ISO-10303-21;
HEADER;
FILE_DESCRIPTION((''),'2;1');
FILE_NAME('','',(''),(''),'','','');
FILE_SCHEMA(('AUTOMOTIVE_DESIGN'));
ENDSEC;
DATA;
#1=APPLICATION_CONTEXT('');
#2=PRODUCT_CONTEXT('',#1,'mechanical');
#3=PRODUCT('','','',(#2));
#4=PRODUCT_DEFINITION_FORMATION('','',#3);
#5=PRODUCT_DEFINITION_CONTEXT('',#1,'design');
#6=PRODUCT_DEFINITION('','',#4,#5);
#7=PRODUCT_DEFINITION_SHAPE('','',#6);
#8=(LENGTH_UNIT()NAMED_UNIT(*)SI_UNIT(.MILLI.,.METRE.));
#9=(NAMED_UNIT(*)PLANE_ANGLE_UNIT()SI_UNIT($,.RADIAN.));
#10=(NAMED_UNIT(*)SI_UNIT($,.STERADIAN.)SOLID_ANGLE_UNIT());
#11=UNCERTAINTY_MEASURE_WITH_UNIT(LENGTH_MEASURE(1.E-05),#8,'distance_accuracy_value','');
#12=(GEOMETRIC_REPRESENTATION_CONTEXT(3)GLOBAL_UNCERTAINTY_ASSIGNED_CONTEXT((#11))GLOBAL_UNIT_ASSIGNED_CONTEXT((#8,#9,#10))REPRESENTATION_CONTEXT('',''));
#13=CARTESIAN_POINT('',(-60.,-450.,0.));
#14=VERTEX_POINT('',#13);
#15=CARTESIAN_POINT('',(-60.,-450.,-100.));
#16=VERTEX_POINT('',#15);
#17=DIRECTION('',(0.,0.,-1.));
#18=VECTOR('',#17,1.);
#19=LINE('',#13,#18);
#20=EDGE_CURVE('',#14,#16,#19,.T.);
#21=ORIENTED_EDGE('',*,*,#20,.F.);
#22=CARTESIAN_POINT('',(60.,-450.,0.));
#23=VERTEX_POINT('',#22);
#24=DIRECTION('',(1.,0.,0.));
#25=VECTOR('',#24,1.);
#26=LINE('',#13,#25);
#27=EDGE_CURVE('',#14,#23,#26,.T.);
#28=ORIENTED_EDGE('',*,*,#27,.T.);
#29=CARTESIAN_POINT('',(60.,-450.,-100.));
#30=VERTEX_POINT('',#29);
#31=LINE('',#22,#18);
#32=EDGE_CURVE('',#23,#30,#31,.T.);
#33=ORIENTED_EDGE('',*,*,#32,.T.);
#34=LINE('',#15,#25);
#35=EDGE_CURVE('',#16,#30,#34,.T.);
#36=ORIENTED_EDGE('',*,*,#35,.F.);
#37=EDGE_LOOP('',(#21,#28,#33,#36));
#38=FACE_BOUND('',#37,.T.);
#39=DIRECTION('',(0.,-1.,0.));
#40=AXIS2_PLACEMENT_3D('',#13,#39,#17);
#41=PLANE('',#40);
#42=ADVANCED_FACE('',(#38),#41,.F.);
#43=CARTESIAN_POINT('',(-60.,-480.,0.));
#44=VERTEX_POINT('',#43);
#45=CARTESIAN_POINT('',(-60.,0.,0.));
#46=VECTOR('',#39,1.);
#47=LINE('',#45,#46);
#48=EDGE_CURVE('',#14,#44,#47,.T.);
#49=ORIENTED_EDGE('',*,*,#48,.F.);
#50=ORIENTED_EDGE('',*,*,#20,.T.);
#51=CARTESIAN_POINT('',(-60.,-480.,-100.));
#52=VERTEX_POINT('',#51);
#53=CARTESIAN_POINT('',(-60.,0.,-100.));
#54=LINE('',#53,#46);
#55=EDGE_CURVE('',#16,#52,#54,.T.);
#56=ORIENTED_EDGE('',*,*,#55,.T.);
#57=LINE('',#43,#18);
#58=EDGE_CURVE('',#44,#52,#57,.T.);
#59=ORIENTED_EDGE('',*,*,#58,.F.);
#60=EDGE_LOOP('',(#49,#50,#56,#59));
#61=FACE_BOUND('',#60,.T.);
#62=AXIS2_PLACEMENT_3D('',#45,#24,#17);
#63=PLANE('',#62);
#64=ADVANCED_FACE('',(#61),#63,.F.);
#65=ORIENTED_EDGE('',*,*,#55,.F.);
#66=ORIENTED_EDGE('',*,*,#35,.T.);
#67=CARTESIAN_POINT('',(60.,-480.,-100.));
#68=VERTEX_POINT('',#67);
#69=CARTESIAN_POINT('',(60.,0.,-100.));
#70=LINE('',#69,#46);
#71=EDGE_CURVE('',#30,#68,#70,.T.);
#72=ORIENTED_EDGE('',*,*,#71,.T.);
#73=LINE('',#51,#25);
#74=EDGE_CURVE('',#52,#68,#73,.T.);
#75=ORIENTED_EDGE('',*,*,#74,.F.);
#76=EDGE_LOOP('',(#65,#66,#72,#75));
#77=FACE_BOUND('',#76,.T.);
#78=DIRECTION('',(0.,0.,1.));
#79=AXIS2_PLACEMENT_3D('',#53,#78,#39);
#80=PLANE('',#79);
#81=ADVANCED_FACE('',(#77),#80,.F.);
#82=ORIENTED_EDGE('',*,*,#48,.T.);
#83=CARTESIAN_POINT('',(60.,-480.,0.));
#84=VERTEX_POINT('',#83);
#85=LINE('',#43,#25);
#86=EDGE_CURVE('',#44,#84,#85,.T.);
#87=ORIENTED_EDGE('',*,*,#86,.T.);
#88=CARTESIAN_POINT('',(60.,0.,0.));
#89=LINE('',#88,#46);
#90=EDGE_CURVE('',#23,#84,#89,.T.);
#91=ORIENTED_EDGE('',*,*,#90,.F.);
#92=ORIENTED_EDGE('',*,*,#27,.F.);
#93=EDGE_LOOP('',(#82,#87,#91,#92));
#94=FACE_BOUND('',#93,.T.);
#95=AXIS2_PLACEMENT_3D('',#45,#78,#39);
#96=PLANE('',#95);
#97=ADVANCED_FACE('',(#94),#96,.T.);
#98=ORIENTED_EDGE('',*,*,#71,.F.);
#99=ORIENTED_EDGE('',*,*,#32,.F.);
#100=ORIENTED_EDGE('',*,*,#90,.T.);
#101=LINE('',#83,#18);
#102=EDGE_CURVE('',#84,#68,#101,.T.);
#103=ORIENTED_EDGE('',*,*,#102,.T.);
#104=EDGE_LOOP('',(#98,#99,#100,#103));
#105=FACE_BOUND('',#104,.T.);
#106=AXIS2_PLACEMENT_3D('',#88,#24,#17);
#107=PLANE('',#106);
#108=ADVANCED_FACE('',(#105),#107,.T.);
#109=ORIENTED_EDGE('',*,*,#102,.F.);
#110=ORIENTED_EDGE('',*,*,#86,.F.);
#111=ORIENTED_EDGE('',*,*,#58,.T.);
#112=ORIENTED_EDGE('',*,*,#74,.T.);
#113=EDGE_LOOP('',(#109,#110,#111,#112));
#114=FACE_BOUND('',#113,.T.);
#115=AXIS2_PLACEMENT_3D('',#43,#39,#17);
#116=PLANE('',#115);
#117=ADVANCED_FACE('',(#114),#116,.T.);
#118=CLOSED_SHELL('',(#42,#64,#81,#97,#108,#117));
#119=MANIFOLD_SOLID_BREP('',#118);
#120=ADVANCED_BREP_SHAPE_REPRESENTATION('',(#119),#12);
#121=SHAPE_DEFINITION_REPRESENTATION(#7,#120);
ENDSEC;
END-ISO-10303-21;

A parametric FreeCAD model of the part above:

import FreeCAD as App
import Part
import Sketcher
Q = App.Units.Quantity

doc = App.newDocument("Part")
body = doc.addObject("PartDesign::Body", "Body")

# Sketch on YZ plane
sketch1 = body.newObject("Sketcher::SketchObject", "Sketch")
sketch1.AttachmentSupport = (doc.getObject("YZ_Plane"), [""])
sketch1.MapMode = "FlatFace"
sketch1.addGeometry(Part.LineSegment(App.Vector(-480, 0, 0), App.Vector(-480, -100, 0)), False)
sketch1.addGeometry(Part.LineSegment(App.Vector(-480, -100, 0), App.Vector(-450, -100, 0)), False)
sketch1.addGeometry(Part.LineSegment(App.Vector(-450, -100, 0), App.Vector(-450, 0, 0)), False)
sketch1.addGeometry(Part.LineSegment(App.Vector(-450, 0, 0), App.Vector(-480, 0, 0)), False)
sketch1.addConstraint(Sketcher.Constraint("Coincident", 0, 2, 1, 1))
sketch1.addConstraint(Sketcher.Constraint("Coincident", 1, 2, 2, 1))
sketch1.addConstraint(Sketcher.Constraint("Coincident", 2, 2, 3, 1))
sketch1.addConstraint(Sketcher.Constraint("Coincident", 3, 2, 0, 1))
sketch1.addConstraint(Sketcher.Constraint("Vertical", 0))
sketch1.addConstraint(Sketcher.Constraint("Horizontal", 1))
sketch1.addConstraint(Sketcher.Constraint("Vertical", 2))
sketch1.addConstraint(Sketcher.Constraint("Horizontal", 3))
sketch1.addConstraint(Sketcher.Constraint("PointOnObject", 2, 2, -1))
sketch1.addConstraint(Sketcher.Constraint("DistanceX", 1, 1, 1, 2, Q("30 mm")))
sketch1.addConstraint(Sketcher.Constraint("DistanceY", 0, 2, 0, 1, Q("100 mm")))
sketch1.addConstraint(Sketcher.Constraint("DistanceX", 0, 2, -1, 1, Q("480 mm")))
pad1 = body.newObject("PartDesign::Pad", "Pad")
pad1.Profile = sketch1
pad1.Type = "TwoLengths"
pad1.Length = 60
pad1.Length2 = 60

doc.recompute()
